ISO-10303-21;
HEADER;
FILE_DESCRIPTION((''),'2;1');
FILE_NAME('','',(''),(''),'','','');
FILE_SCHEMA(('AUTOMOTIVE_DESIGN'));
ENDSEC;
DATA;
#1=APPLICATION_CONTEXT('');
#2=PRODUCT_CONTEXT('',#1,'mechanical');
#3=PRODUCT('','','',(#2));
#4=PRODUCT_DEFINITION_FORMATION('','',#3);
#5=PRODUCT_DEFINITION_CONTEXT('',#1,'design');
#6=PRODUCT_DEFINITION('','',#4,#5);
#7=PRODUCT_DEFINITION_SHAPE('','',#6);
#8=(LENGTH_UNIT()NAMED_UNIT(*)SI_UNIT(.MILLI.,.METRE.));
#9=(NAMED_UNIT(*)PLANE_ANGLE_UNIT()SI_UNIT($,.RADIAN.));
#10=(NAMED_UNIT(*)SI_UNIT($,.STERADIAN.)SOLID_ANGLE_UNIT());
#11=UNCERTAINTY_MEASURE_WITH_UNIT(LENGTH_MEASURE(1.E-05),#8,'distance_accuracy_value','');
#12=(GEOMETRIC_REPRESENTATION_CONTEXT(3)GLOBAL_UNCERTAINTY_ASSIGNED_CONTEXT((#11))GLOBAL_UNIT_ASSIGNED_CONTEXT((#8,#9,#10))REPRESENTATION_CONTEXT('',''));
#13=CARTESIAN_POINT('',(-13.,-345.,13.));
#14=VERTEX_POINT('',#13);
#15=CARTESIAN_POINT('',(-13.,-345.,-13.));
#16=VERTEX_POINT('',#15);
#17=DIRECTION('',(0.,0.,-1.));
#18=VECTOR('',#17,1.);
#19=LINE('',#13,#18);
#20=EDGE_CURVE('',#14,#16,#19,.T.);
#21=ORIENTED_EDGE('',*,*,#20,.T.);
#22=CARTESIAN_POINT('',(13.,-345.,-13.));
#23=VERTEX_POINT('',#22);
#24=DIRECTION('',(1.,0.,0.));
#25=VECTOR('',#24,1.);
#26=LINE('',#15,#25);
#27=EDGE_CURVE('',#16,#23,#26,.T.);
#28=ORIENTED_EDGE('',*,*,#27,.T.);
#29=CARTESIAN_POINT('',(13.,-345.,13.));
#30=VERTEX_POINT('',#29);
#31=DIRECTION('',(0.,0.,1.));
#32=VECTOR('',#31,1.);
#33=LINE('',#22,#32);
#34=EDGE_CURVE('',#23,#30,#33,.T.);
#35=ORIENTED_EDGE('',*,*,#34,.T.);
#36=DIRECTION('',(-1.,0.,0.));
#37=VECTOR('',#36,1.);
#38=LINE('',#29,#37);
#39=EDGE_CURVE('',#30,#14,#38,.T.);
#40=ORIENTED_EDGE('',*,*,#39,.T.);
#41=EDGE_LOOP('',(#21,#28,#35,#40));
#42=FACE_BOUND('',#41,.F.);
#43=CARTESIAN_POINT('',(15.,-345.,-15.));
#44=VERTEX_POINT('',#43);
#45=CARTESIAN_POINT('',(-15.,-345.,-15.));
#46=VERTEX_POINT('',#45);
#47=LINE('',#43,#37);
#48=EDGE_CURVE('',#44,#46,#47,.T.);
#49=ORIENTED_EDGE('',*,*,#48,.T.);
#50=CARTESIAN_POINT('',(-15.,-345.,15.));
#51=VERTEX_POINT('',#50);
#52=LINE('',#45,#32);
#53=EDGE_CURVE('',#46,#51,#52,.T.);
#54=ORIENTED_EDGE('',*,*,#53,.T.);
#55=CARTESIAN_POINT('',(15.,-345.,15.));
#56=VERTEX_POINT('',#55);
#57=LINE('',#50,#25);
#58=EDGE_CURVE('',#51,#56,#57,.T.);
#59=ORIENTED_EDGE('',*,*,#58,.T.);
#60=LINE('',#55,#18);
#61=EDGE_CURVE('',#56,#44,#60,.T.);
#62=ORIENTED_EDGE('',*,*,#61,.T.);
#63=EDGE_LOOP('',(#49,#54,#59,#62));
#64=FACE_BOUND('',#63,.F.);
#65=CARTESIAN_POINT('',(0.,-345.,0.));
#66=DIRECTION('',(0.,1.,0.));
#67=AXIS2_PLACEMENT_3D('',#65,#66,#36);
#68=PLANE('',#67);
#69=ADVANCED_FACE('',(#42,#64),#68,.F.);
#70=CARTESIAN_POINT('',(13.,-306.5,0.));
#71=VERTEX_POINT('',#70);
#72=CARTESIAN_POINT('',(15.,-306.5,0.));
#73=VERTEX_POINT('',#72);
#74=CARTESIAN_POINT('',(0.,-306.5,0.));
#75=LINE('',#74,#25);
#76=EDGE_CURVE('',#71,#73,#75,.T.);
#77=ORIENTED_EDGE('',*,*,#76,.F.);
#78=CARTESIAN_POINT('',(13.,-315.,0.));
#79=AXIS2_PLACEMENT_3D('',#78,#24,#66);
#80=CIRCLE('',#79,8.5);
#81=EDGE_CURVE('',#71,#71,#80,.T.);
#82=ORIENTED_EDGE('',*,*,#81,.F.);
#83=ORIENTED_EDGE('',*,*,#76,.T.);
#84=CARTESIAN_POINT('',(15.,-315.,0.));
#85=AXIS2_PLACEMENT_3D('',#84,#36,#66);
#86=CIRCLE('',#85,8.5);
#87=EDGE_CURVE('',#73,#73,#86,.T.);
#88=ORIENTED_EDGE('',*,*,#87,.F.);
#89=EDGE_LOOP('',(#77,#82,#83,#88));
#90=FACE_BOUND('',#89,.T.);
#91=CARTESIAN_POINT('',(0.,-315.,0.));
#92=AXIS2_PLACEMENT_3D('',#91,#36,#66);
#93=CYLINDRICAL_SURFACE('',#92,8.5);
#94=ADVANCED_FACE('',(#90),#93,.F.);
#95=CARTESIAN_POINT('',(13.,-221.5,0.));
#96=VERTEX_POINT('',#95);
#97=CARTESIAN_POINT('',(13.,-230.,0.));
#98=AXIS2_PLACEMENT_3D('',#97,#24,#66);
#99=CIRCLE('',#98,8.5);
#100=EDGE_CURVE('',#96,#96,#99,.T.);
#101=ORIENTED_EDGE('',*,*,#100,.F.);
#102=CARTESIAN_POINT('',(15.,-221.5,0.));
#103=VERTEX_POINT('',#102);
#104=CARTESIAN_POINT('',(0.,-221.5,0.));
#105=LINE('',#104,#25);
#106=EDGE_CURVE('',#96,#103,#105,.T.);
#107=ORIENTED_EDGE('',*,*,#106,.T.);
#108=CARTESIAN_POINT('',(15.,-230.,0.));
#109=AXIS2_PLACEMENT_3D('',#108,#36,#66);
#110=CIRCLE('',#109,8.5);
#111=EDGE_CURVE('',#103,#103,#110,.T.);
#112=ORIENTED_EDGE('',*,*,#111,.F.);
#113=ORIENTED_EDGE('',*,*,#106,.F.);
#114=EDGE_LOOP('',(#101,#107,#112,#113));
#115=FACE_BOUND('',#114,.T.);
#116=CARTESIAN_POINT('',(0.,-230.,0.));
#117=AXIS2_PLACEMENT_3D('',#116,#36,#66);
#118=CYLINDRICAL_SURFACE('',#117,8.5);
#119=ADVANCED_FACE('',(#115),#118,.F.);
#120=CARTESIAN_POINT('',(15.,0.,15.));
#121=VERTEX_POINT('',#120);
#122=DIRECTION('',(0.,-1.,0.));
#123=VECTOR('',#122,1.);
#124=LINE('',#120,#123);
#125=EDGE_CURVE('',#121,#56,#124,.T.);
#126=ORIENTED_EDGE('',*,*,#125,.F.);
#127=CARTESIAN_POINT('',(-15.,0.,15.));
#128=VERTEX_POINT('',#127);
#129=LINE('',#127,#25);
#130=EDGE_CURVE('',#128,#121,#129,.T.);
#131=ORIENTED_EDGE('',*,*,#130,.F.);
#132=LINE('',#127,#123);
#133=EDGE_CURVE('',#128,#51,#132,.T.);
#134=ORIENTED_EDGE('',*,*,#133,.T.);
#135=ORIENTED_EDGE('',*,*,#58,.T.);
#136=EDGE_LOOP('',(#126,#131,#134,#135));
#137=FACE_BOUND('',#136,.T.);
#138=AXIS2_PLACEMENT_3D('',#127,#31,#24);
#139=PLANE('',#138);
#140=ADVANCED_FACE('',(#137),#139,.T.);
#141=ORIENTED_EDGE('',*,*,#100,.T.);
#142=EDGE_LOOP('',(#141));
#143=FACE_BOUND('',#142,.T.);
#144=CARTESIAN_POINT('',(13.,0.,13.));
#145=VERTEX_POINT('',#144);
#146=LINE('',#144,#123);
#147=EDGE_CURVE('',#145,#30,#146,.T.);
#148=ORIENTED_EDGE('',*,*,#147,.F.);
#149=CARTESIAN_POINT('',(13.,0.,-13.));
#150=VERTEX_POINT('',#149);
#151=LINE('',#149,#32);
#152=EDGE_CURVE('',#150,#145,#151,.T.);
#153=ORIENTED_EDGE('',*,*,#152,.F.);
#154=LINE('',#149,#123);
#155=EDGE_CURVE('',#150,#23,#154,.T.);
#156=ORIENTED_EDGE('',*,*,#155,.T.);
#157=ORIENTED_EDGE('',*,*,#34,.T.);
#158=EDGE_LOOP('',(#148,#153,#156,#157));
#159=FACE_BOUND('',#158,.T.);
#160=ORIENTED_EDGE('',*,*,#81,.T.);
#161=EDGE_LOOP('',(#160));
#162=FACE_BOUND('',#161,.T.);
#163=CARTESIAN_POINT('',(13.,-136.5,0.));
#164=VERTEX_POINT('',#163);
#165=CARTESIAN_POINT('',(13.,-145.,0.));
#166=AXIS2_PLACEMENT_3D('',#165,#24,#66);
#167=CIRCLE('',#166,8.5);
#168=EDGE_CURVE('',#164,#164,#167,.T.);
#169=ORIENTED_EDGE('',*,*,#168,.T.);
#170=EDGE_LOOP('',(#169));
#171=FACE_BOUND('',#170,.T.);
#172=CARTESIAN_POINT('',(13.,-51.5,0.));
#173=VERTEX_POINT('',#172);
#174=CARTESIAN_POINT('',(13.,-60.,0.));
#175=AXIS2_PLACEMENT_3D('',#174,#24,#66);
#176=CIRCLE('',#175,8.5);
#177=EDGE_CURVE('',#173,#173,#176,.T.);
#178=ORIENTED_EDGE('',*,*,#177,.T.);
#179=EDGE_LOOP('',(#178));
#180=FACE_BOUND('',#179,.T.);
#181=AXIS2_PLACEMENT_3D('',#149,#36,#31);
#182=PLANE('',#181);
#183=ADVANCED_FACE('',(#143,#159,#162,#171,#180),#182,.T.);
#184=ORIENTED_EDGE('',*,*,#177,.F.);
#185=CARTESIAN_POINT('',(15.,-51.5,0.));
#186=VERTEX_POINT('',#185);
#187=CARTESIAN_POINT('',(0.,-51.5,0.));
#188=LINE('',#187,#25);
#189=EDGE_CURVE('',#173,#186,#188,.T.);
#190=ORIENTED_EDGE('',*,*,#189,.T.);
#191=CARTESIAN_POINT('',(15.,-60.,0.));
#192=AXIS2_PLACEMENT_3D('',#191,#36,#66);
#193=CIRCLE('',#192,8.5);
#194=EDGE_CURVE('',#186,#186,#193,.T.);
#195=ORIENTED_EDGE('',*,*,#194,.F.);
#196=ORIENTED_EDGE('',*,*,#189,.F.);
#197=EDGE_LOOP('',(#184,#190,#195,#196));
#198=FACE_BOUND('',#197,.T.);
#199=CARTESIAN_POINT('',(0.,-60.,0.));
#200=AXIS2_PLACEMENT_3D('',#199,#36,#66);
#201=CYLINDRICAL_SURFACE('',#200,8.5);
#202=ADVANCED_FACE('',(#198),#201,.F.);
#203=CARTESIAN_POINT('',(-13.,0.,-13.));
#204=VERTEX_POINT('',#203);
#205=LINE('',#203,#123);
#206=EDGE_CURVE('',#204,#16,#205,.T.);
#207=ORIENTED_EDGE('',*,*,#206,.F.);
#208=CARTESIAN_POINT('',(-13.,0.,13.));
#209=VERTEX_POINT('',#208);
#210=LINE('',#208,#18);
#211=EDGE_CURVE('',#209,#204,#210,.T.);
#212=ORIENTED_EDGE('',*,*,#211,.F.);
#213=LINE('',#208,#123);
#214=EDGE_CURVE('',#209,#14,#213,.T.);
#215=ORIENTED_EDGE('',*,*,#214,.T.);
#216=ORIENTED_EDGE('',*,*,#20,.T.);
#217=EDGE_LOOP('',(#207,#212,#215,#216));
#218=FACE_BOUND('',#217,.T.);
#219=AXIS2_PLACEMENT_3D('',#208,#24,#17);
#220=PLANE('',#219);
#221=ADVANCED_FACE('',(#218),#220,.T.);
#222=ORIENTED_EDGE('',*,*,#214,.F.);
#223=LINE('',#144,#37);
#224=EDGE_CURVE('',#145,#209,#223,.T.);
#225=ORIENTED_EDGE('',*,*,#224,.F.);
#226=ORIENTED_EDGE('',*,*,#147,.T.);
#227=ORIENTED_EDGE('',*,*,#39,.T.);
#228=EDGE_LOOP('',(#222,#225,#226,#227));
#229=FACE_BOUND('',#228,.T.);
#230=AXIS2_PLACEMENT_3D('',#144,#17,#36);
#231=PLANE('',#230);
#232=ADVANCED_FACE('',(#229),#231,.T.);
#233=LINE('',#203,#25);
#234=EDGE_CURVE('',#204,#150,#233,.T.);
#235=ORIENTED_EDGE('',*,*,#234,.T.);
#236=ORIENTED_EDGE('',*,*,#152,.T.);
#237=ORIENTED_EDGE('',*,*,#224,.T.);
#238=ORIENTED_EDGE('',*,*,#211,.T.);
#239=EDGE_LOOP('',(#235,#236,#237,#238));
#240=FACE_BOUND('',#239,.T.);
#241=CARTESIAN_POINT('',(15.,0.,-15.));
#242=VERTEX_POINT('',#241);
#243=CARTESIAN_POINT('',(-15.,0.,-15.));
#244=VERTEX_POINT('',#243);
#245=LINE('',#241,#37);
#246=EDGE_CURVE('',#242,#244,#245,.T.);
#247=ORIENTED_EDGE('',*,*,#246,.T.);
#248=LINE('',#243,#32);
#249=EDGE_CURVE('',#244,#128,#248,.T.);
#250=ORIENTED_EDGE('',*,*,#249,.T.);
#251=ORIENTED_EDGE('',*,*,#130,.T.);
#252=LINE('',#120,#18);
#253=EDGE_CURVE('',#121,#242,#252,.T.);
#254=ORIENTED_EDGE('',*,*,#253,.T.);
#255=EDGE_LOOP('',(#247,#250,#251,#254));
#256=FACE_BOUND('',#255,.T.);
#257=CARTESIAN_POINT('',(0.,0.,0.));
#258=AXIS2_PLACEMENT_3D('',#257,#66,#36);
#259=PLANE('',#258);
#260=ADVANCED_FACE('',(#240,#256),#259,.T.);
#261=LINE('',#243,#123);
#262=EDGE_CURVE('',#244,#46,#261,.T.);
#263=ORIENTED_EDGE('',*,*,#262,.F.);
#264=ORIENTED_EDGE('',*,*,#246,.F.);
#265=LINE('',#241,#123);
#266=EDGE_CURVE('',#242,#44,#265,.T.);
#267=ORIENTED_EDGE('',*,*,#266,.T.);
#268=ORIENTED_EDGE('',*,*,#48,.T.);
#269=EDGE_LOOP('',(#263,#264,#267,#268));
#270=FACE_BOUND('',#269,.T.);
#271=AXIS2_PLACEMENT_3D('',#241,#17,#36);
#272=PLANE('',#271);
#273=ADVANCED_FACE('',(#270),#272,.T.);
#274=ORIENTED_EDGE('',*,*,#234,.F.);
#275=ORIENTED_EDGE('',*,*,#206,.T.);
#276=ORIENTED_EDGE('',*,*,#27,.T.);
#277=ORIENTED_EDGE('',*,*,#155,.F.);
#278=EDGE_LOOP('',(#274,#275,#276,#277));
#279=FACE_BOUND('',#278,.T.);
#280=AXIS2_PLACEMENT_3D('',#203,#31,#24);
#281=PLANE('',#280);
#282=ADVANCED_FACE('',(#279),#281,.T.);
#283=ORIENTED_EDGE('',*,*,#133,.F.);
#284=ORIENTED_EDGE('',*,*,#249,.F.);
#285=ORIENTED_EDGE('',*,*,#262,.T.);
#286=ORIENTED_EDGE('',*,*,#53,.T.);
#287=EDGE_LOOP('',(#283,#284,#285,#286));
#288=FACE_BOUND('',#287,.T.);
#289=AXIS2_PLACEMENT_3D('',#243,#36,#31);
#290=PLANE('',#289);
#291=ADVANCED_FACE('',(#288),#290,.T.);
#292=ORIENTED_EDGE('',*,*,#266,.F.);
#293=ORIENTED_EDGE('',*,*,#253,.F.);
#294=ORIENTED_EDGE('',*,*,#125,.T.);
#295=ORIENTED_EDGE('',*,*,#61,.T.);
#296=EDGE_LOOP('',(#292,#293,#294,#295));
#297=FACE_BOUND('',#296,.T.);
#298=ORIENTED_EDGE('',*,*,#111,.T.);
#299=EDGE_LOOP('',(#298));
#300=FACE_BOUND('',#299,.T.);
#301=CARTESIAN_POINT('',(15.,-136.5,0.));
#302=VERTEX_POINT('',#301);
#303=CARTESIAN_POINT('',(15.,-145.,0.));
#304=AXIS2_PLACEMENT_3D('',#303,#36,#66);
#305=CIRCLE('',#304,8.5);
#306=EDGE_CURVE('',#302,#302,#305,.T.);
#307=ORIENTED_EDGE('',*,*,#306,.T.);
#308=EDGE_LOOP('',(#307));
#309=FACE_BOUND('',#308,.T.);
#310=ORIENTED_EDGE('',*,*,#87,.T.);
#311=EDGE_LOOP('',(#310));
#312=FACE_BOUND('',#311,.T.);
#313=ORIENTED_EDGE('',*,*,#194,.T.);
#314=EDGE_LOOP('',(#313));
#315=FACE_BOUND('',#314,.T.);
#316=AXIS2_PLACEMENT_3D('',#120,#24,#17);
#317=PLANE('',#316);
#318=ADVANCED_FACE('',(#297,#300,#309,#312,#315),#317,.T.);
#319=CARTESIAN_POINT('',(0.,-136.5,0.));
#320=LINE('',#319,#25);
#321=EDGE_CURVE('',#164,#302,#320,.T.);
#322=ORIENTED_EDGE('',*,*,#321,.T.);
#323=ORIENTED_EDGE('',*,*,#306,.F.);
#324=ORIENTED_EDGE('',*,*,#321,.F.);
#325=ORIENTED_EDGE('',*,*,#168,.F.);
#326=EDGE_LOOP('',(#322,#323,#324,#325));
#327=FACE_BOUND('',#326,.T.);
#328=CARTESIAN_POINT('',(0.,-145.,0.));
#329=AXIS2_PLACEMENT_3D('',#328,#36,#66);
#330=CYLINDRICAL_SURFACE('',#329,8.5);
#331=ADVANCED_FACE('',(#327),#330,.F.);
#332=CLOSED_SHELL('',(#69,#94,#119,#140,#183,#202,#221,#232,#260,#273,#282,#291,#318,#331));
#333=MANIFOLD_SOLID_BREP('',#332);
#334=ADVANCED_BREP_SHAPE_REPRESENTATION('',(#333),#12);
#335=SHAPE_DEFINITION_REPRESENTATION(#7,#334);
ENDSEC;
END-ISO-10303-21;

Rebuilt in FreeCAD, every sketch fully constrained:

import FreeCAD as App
import Part
import Sketcher
Q = App.Units.Quantity


def add_polygon(sketch, points):
    """Adds a closed chain of lines whose ends are joined by coincident constraints."""
    first, n = sketch.GeometryCount, len(points)
    for a, b in zip(points, points[1:] + points[:1]):
        sketch.addGeometry(Part.LineSegment(App.Vector(*a, 0), App.Vector(*b, 0)), False)
    for i in range(n):
        sketch.addConstraint(Sketcher.Constraint("Coincident", first + i, 2, first + (i + 1) % n, 1))

doc = App.newDocument("Part")
body = doc.addObject("PartDesign::Body", "Body")

# Sketch on XZ plane
sketch1 = body.newObject("Sketcher::SketchObject", "Sketch")
sketch1.AttachmentSupport = (doc.getObject("XZ_Plane"), [""])
sketch1.MapMode = "FlatFace"
add_polygon(sketch1, [(-15, -15), (-15, 15), (15, 15), (15, -15)])  # lines 0-3
add_polygon(sketch1, [(13, -13), (13, 13), (-13, 13), (-13, -13)])  # lines 4-7
sketch1.addConstraint(Sketcher.Constraint("Vertical", 0))
sketch1.addConstraint(Sketcher.Constraint("Horizontal", 1))
sketch1.addConstraint(Sketcher.Constraint("Vertical", 2))
sketch1.addConstraint(Sketcher.Constraint("Horizontal", 3))
sketch1.addConstraint(Sketcher.Constraint("Vertical", 4))
sketch1.addConstraint(Sketcher.Constraint("Horizontal", 5))
sketch1.addConstraint(Sketcher.Constraint("Vertical", 6))
sketch1.addConstraint(Sketcher.Constraint("Horizontal", 7))
sketch1.addConstraint(Sketcher.Constraint("Symmetric", 0, 2, 2, 2, -1, 1))
sketch1.addConstraint(Sketcher.Constraint("Symmetric", 4, 2, 6, 2, -1, 1))
sketch1.addConstraint(Sketcher.Constraint("Equal", 3, 0))
sketch1.addConstraint(Sketcher.Constraint("Equal", 7, 4))
sketch1.addConstraint(Sketcher.Constraint("DistanceX", 1, 1, 1, 2, Q("30 mm")))
sketch1.addConstraint(Sketcher.Constraint("DistanceX", 4, 2, 1, 2, Q("2 mm")))
pad1 = body.newObject("PartDesign::Pad", "Pad")
pad1.Profile = sketch1
pad1.Length = 345

# Sketch on YZ plane
sketch2 = body.newObject("Sketcher::SketchObject", "Sketch001")
sketch2.AttachmentSupport = (doc.getObject("YZ_Plane"), [""])
sketch2.MapMode = "FlatFace"
sketch2.addGeometry(Part.Circle(App.Vector(-60, 0, 0), App.Vector(0, 0, 1), 8.5), False)
sketch2.addConstraint(Sketcher.Constraint("PointOnObject", 0, 3, -1))
sketch2.addConstraint(Sketcher.Constraint("Diameter", 0, Q("17 mm")))
sketch2.addConstraint(Sketcher.Constraint("DistanceX", 0, 3, -1, 1, Q("60 mm")))
pocket1 = body.newObject("PartDesign::Pocket", "Pocket")
pocket1.Profile = sketch2
pocket1.Type = "ThroughAll"
pocket1.Reversed = True
doc.recompute()

linearpattern = body.newObject("PartDesign::LinearPattern", "LinearPattern")
linearpattern.Originals = [pocket1]
linearpattern.Direction = (doc.getObject("Y_Axis"), [""])
linearpattern.Mode = "offset"
linearpattern.Offset = 85
linearpattern.Occurrences = 4
linearpattern.Reversed = True
body.Tip = linearpattern

doc.recompute()
